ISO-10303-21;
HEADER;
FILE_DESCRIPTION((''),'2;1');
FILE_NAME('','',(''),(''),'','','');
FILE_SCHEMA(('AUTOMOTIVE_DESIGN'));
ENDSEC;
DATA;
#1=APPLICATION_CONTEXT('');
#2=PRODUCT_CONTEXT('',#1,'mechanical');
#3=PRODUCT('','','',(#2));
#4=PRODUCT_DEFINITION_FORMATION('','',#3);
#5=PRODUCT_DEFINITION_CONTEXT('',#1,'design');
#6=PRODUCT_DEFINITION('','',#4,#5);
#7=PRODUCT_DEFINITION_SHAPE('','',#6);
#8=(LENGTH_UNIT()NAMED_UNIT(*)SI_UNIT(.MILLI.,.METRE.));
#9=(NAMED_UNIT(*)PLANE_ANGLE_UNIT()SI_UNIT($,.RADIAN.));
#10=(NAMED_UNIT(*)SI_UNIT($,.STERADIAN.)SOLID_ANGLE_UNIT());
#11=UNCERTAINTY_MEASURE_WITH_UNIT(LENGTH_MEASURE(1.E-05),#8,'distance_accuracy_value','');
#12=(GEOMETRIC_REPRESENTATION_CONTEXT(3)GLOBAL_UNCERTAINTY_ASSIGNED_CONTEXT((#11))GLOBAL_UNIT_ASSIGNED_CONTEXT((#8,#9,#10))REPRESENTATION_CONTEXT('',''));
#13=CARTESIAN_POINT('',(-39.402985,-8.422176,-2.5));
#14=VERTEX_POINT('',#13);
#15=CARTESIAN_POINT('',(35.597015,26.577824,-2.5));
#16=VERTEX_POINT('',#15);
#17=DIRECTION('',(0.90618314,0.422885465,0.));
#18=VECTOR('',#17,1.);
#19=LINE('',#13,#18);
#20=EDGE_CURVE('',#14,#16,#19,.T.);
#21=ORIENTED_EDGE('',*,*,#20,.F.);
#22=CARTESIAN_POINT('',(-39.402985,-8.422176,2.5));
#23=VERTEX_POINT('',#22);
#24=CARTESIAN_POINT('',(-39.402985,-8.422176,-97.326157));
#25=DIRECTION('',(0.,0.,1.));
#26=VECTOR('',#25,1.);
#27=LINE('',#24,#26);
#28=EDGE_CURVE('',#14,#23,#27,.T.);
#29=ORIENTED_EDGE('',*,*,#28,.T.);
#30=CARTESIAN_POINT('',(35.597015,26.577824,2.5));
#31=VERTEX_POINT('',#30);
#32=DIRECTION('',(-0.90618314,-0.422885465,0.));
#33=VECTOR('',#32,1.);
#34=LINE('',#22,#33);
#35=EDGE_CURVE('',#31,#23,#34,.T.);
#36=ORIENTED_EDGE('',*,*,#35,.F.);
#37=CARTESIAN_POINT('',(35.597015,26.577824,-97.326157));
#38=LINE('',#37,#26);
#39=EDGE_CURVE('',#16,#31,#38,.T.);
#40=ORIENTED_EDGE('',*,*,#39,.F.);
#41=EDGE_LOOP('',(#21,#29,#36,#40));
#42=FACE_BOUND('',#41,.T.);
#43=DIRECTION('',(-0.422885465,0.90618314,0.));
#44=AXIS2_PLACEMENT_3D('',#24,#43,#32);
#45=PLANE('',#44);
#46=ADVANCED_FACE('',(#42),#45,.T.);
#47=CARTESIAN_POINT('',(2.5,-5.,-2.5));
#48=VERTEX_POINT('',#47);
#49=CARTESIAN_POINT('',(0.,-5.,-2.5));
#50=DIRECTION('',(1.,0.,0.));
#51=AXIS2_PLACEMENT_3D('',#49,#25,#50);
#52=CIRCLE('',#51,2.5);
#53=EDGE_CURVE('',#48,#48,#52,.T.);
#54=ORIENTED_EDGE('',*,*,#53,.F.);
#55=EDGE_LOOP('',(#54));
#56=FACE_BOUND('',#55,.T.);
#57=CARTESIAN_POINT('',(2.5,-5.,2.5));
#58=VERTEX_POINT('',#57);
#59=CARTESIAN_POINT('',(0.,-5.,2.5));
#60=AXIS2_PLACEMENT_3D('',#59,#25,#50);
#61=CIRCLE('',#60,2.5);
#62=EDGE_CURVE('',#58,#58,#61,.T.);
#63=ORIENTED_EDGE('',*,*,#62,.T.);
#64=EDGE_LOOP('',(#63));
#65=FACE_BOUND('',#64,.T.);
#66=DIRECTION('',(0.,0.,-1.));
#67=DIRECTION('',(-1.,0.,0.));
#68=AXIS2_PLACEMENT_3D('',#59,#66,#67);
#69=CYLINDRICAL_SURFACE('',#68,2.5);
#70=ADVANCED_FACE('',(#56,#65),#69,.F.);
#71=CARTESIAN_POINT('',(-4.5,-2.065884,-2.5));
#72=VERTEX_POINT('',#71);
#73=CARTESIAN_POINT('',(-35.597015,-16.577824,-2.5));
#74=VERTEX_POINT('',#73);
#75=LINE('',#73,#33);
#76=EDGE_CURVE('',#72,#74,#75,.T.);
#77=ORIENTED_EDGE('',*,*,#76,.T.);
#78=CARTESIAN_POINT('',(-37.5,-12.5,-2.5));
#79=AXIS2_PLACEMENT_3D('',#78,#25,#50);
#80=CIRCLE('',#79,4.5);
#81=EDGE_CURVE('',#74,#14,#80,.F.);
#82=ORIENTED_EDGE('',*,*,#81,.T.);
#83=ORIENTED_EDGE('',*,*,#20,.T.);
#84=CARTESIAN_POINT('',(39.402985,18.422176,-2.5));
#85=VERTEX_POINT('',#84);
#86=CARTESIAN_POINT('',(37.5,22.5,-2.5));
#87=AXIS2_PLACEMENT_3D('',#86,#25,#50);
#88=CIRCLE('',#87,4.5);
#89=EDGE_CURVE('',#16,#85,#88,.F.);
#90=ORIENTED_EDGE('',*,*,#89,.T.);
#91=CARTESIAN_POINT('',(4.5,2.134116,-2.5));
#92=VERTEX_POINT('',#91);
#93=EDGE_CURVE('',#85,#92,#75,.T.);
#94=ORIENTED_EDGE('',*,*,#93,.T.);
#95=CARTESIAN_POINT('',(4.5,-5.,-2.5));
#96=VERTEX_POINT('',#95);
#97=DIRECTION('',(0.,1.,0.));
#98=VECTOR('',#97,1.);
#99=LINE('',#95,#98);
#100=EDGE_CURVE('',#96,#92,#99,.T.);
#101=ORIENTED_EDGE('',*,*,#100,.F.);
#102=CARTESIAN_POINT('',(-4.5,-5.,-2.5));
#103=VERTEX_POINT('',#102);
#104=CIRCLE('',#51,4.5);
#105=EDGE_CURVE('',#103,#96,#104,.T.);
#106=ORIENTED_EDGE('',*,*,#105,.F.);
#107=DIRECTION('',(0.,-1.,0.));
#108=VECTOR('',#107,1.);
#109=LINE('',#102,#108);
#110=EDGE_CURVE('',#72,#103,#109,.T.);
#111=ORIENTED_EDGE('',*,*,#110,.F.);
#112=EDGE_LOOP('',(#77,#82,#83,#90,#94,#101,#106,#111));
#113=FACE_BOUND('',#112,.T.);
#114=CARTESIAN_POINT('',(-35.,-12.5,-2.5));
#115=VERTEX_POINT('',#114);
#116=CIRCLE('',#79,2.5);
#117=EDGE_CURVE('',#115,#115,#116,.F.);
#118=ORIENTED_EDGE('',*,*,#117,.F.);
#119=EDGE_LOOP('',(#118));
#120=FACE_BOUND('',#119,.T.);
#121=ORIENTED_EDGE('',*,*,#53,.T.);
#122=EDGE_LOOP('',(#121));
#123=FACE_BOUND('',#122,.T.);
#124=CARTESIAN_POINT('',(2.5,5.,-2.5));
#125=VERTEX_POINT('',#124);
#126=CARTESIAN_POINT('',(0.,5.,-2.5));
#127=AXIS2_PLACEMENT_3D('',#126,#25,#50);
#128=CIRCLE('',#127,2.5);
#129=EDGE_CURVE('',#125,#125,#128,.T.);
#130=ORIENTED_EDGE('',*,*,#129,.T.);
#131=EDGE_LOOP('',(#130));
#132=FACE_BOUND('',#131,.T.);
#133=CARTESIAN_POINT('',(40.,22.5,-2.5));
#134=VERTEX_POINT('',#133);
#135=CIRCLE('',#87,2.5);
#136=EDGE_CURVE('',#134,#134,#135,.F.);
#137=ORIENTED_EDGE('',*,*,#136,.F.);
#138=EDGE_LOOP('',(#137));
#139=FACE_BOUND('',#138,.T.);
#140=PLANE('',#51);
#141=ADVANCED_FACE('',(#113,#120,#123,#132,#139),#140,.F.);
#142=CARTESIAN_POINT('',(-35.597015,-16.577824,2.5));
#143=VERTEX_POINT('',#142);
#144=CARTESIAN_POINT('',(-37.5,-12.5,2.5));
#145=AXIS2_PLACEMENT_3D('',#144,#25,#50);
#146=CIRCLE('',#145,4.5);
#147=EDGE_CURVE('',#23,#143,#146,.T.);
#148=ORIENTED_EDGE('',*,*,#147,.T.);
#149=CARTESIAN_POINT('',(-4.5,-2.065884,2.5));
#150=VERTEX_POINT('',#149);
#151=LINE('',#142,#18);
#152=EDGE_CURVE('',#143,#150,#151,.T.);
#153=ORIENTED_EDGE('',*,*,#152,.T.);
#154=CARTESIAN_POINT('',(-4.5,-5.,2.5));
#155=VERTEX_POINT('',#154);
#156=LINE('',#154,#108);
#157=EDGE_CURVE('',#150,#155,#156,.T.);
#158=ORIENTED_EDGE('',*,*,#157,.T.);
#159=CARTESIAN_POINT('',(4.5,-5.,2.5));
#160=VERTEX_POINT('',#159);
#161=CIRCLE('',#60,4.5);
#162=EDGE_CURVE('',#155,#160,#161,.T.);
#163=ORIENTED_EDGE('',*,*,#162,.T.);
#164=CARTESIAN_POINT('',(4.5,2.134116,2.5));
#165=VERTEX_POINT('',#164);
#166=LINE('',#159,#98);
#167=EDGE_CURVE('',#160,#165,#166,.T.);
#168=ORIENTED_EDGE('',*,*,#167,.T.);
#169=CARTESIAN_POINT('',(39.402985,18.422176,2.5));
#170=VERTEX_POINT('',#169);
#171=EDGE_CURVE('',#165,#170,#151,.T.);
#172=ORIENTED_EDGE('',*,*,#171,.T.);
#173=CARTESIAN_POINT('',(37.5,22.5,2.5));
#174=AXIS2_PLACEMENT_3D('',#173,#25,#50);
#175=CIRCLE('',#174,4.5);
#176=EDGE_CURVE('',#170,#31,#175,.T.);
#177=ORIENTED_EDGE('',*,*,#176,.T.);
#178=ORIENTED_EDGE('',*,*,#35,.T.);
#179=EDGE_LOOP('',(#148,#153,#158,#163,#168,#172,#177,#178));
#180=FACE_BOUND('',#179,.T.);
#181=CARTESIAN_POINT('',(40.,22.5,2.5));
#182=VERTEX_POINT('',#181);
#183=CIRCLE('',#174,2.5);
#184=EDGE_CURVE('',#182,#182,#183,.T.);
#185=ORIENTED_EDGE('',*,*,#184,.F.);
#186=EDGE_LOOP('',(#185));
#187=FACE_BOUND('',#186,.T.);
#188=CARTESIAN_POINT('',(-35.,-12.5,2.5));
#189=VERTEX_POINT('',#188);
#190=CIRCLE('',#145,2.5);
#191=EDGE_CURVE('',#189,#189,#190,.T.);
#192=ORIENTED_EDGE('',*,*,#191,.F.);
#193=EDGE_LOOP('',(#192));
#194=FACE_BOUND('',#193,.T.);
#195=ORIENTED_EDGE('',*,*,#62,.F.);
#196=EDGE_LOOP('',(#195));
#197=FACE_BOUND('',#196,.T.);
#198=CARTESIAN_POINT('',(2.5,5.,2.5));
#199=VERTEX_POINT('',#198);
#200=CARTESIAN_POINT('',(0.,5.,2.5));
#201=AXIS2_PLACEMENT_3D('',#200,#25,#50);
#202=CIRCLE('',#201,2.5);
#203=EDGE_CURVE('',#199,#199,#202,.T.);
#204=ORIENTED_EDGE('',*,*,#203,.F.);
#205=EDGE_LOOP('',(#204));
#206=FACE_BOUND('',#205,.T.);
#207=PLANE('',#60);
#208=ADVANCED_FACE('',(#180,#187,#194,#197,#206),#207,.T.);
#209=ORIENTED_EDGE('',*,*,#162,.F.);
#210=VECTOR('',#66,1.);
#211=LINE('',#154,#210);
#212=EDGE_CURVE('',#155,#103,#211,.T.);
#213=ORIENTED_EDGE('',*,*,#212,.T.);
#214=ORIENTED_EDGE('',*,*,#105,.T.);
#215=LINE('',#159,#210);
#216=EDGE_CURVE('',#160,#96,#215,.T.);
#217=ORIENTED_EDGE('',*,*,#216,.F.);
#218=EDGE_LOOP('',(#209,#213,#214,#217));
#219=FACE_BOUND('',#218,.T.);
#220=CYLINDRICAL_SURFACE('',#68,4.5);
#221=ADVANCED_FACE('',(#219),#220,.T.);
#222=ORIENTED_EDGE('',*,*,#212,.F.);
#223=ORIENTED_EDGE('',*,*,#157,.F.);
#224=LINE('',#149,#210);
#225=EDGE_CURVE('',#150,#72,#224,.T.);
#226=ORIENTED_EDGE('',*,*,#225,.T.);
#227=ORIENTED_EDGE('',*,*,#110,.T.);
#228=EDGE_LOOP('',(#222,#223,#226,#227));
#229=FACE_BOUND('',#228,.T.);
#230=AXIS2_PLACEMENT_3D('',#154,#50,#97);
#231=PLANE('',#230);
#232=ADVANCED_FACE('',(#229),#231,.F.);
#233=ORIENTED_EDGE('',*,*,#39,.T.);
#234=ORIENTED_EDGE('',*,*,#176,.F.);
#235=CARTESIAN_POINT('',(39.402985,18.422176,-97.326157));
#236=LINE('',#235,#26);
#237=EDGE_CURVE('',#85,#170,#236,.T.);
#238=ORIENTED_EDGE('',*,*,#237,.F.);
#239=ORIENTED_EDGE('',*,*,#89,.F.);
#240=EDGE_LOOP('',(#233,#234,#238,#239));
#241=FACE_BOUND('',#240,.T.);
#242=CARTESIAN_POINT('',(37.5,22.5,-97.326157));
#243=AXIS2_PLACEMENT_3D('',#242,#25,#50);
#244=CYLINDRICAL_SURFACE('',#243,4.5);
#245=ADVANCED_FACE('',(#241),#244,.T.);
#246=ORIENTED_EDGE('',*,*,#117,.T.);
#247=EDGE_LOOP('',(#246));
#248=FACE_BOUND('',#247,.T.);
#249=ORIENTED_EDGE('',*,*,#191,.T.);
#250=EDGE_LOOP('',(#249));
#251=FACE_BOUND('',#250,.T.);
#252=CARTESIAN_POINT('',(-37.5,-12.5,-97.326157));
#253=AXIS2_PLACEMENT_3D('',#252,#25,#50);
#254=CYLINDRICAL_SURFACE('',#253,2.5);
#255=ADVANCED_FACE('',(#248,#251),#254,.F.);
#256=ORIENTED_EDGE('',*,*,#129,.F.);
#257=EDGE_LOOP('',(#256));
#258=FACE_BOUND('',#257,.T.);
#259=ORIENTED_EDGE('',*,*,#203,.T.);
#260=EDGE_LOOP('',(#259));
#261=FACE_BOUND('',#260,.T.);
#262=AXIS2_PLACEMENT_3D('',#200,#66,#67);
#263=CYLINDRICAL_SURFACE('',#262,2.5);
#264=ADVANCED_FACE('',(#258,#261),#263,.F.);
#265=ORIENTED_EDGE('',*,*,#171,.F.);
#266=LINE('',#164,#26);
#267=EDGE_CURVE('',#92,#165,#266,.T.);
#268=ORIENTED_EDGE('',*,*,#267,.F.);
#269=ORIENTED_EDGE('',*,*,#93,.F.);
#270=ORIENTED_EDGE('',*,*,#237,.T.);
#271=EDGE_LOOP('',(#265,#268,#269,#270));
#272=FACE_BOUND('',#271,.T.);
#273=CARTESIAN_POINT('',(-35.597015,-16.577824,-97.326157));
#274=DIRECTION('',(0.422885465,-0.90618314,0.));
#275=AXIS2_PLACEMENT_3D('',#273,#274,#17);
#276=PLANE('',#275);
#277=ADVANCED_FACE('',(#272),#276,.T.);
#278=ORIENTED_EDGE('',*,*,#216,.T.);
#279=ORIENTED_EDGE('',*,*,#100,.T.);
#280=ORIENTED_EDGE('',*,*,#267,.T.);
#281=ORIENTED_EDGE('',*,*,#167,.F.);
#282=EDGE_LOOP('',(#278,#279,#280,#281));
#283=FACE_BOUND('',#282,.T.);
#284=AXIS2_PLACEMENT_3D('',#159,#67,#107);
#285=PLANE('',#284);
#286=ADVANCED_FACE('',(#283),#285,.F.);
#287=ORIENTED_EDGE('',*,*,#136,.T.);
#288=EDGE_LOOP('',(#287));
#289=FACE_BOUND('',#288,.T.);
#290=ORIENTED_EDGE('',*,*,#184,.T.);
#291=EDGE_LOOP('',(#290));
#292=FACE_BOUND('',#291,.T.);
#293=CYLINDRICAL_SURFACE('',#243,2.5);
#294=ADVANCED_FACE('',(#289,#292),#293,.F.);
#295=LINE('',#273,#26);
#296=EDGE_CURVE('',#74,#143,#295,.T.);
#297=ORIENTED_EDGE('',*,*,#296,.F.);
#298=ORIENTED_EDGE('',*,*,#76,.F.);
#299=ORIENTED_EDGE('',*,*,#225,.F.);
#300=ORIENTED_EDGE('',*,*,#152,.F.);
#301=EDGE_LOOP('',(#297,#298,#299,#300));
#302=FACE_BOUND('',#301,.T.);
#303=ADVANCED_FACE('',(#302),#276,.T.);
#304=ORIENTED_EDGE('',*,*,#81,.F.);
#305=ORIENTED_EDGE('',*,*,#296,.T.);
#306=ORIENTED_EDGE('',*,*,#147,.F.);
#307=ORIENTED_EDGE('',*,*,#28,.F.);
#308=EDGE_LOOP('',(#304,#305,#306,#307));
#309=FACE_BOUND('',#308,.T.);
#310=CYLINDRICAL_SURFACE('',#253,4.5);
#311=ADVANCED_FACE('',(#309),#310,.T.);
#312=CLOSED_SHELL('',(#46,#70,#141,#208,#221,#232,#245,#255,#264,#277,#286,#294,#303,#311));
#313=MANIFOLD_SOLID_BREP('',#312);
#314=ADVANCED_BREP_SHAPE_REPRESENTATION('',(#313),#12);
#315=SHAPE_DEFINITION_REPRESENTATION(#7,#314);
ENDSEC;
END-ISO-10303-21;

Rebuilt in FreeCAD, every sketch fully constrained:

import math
import FreeCAD as App
import Part
import Sketcher

doc = App.newDocument("Part")
body = doc.addObject("PartDesign::Body", "Body")

# Sketch on XY plane
sketch1 = body.newObject("Sketcher::SketchObject", "Sketch")
sketch1.AttachmentSupport = (doc.getObject("XY_Plane"), [""])
sketch1.MapMode = "FlatFace"
sketch1.addGeometry([
    Part.LineSegment(App.Vector(-4.5, 5, 0), App.Vector(-4.5, -5, 0)),  # 0
    Part.ArcOfCircle(Part.Circle(App.Vector(0, -5, 0), App.Vector(0, 0, 1), 4.5), math.radians(180), math.radians(360)),  # 1
    Part.LineSegment(App.Vector(4.5, -5, 0), App.Vector(4.5, 5, 0)),  # 2
    Part.ArcOfCircle(Part.Circle(App.Vector(0, 5, 0), App.Vector(0, 0, 1), 4.5), math.radians(0), math.radians(180)),  # 3
    Part.Circle(App.Vector(0, -5, 0), App.Vector(0, 0, 1), 2.5),  # 4
    Part.Circle(App.Vector(0, 5, 0), App.Vector(0, 0, 1), 2.5),  # 5
], False)
sketch1.addConstraint([
    Sketcher.Constraint("Tangent", 0, 2, 1, 1),
    Sketcher.Constraint("Tangent", 1, 2, 2, 1),
    Sketcher.Constraint("Tangent", 2, 2, 3, 1),
    Sketcher.Constraint("Tangent", 3, 2, 0, 1),
    Sketcher.Constraint("Vertical", 0),
    Sketcher.Constraint("Vertical", 2),
    Sketcher.Constraint("Coincident", 4, 3, 1, 3),
    Sketcher.Constraint("Coincident", 5, 3, 3, 3),
    Sketcher.Constraint("Equal", 4, 5),
    Sketcher.Constraint("Symmetric", 1, 3, 3, 3, -1, 1),
    Sketcher.Constraint("Diameter", 4, 5.0),
    Sketcher.Constraint("Radius", 1, 4.5),
    Sketcher.Constraint("DistanceY", 0, 2, 0, 1, 10.0),
])
pad1 = body.newObject("PartDesign::Pad", "Pad")
pad1.Profile = sketch1
pad1.Length = 5
pad1.Midplane = True

# Sketch on XY plane
sketch2 = body.newObject("Sketcher::SketchObject", "Sketch001")
sketch2.AttachmentSupport = (doc.getObject("XY_Plane"), [""])
sketch2.MapMode = "FlatFace"
sketch2.AttachmentOffset = App.Placement(App.Vector(0, 0, 2.5), App.Rotation())
sketch2.addGeometry([
    Part.LineSegment(App.Vector(35.6, 26.6, 0), App.Vector(-39.4, -8.4, 0)),  # 0
    Part.ArcOfCircle(Part.Circle(App.Vector(-37.5, -12.5, 0), App.Vector(0, 0, 1), 4.5), math.radians(115), math.radians(295)),  # 1
    Part.LineSegment(App.Vector(-35.6, -16.6, 0), App.Vector(39.4, 18.4, 0)),  # 2
    Part.ArcOfCircle(Part.Circle(App.Vector(37.5, 22.5, 0), App.Vector(0, 0, 1), 4.5), math.radians(-65), math.radians(115)),  # 3
    Part.Circle(App.Vector(-37.5, -12.5, 0), App.Vector(0, 0, 1), 2.5),  # 4
    Part.Circle(App.Vector(37.5, 22.5, 0), App.Vector(0, 0, 1), 2.5),  # 5
    Part.Circle(App.Vector(0, 5, 0), App.Vector(0, 0, 1), 2.5),  # 6
], False)
sketch2.addConstraint([
    Sketcher.Constraint("Tangent", 0, 2, 1, 1),
    Sketcher.Constraint("Tangent", 1, 2, 2, 1),
    Sketcher.Constraint("Tangent", 2, 2, 3, 1),
    Sketcher.Constraint("Tangent", 3, 2, 0, 1),
    Sketcher.Constraint("Coincident", 4, 3, 1, 3),
    Sketcher.Constraint("Coincident", 5, 3, 3, 3),
    Sketcher.Constraint("Equal", 1, 3),
    Sketcher.Constraint("Equal", 4, 5),
    Sketcher.Constraint("Equal", 5, 6),
    Sketcher.Constraint("PointOnObject", 6, 3, -2),
    Sketcher.Constraint("Diameter", 4, 5.0),
    Sketcher.Constraint("Radius", 1, 4.5),
    Sketcher.Constraint("DistanceY", -1, 1, 6, 3, 5.0),
    Sketcher.Constraint("DistanceX", 1, 3, 3, 3, 75.0),
    Sketcher.Constraint("DistanceY", 1, 3, 3, 3, 35.0),
    Sketcher.Constraint("DistanceX", 1, 3, -1, 1, 37.5),
    Sketcher.Constraint("DistanceY", 1, 3, -1, 1, 12.5),
])
pad2 = body.newObject("PartDesign::Pad", "Pad001")
pad2.Profile = sketch2
pad2.Length = 5
pad2.Reversed = True

doc.recompute()
